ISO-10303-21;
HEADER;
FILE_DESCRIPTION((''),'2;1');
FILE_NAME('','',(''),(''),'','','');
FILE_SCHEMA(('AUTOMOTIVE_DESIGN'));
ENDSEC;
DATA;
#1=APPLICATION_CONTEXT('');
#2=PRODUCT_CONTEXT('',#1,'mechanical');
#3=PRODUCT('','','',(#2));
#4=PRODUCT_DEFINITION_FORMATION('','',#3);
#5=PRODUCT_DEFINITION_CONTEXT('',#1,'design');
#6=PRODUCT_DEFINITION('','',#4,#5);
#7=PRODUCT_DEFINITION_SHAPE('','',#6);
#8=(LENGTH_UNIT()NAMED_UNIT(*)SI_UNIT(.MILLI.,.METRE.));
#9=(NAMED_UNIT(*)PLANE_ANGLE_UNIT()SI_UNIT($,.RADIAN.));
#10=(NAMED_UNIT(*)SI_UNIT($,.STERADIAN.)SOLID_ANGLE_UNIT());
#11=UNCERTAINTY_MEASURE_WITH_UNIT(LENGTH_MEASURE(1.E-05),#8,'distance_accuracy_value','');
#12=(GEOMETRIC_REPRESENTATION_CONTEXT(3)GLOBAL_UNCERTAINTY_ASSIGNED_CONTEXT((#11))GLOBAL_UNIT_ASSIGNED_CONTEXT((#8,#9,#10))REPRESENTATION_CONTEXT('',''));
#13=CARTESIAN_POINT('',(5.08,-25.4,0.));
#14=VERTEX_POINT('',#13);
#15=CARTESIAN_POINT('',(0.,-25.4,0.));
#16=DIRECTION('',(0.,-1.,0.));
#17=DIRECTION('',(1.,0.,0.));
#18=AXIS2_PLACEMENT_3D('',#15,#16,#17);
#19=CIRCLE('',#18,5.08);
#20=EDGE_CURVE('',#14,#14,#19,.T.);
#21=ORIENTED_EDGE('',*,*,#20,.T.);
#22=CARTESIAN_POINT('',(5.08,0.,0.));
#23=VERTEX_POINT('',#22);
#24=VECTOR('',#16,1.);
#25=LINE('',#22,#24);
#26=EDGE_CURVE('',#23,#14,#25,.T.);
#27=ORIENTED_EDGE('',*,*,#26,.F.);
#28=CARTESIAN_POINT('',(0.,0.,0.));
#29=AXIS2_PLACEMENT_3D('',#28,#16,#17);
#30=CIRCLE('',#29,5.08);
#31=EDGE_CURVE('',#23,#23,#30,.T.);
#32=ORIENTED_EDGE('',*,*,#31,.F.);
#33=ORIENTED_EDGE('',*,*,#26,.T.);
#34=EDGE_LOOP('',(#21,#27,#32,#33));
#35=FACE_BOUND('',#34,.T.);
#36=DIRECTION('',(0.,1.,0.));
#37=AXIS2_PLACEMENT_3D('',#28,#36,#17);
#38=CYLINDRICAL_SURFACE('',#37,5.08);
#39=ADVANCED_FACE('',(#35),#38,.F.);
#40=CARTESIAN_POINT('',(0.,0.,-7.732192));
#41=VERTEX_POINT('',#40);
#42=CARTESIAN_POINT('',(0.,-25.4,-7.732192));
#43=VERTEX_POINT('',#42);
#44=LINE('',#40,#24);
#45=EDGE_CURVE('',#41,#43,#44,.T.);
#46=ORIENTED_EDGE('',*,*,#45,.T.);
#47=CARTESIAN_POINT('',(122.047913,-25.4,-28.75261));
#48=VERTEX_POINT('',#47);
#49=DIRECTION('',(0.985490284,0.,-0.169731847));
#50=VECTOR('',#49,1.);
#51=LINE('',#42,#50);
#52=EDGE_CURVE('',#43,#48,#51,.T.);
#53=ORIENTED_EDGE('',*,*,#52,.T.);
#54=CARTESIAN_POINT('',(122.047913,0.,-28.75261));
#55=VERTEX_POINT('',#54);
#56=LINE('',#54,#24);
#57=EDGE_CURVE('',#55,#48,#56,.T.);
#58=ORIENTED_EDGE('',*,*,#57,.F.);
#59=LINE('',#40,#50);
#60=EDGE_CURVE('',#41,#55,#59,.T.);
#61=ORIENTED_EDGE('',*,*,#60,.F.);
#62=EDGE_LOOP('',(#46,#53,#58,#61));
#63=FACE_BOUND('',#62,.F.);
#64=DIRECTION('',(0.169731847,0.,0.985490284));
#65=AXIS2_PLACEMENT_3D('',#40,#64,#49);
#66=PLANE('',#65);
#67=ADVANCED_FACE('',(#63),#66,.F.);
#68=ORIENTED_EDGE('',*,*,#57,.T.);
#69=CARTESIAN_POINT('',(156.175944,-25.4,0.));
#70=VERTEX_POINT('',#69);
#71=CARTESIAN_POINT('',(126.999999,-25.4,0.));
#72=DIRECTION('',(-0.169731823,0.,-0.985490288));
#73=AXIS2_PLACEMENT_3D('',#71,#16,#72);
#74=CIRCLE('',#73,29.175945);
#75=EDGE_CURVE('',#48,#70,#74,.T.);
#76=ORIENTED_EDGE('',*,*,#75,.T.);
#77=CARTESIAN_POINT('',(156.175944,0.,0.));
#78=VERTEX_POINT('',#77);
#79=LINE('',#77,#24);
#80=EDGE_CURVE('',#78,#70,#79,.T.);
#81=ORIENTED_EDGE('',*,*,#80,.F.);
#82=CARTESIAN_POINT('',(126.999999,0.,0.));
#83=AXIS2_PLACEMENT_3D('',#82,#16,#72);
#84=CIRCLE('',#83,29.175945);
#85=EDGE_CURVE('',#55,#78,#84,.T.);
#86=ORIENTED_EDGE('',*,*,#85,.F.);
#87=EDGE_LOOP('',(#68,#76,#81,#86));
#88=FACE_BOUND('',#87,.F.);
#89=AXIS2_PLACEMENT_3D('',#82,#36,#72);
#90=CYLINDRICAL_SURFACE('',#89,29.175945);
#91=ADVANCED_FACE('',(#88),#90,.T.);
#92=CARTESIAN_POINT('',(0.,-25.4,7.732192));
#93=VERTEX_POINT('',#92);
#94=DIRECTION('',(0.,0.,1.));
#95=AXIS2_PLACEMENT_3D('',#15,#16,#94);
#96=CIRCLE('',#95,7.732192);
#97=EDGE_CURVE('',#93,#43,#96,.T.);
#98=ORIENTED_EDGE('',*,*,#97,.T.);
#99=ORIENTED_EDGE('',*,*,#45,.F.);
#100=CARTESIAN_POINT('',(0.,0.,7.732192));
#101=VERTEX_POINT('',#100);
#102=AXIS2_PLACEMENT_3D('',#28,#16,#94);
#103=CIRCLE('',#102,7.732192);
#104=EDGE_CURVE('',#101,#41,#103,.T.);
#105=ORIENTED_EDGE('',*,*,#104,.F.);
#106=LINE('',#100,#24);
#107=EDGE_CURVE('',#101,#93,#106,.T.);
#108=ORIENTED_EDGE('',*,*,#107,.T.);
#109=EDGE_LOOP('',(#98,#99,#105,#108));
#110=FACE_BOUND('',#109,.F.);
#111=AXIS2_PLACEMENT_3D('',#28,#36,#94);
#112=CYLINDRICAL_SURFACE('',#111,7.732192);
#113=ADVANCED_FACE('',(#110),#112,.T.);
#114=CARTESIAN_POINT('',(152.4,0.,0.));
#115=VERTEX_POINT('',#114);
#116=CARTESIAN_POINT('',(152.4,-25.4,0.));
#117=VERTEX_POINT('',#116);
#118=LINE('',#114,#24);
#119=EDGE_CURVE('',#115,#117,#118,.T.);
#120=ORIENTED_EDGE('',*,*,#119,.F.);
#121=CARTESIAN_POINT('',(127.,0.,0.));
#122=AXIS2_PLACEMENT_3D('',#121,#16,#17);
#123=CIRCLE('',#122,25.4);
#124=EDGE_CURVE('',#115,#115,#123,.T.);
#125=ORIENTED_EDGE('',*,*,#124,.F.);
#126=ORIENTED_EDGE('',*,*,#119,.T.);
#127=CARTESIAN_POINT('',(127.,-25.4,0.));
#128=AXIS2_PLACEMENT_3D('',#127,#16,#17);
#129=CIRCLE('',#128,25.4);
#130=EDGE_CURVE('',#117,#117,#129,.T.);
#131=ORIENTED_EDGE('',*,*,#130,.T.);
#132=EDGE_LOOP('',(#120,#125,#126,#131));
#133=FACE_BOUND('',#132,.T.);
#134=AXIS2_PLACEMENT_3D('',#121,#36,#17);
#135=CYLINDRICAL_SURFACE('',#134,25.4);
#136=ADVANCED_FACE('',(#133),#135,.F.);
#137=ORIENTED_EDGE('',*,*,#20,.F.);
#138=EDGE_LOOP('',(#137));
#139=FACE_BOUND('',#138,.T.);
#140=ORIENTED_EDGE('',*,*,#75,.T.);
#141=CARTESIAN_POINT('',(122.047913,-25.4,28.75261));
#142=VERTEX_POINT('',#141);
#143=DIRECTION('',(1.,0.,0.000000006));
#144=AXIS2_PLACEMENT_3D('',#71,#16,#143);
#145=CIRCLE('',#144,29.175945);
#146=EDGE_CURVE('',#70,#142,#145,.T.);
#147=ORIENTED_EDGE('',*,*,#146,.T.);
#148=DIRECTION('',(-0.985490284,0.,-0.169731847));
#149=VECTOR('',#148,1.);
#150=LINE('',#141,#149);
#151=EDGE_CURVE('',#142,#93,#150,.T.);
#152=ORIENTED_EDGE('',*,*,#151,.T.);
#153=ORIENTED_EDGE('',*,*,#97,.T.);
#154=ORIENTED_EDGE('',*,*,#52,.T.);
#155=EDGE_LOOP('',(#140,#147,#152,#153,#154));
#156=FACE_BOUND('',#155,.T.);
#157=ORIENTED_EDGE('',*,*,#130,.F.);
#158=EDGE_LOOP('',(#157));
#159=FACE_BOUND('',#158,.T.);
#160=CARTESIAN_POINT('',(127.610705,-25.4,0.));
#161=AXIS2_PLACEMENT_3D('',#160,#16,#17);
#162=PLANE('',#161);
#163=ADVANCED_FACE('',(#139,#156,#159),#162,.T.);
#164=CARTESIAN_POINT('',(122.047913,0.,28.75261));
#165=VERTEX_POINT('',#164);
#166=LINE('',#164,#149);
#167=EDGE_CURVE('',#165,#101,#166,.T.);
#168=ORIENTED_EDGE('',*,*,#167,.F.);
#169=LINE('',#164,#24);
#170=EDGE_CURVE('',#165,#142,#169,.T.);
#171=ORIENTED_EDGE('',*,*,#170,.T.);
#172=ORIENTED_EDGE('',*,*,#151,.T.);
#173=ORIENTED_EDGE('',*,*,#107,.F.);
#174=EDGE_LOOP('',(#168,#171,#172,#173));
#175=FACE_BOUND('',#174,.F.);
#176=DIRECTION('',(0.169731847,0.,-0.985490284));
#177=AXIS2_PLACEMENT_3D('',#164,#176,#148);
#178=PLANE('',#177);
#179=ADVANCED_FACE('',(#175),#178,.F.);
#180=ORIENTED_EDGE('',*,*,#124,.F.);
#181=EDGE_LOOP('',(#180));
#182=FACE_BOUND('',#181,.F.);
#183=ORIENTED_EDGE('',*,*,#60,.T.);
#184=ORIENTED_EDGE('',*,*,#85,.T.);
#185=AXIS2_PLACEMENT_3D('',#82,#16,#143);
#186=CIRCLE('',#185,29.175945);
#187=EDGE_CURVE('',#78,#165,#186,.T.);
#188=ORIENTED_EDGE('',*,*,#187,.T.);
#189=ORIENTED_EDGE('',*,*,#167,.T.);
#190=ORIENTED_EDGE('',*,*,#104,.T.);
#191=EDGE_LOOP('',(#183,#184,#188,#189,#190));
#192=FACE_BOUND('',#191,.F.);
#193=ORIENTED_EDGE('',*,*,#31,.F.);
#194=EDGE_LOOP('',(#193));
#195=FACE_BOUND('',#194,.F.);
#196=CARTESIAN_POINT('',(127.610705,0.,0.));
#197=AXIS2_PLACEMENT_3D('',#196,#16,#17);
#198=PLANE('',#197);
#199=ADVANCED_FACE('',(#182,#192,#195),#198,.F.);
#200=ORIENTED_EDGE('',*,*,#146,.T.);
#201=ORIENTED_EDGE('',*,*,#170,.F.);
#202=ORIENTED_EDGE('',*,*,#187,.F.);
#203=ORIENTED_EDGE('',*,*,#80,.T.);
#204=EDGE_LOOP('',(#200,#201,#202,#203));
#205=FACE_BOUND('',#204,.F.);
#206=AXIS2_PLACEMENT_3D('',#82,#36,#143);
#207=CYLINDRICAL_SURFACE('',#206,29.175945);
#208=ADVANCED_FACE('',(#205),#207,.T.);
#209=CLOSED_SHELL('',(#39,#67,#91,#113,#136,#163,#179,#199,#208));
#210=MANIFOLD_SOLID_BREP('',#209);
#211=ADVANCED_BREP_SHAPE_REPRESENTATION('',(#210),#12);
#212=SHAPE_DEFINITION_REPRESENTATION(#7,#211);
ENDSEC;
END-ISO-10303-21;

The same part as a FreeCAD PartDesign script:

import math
import FreeCAD as App
import Part
import Sketcher
from FreeCAD import Vector
Q = App.Units.Quantity

doc = App.newDocument("Part")
body = doc.addObject("PartDesign::Body", "Body")

# Sketch on XZ plane
sketch1 = body.newObject("Sketcher::SketchObject", "Sketch")
sketch1.AttachmentSupport = (doc.getObject("XZ_Plane"), [""])
sketch1.MapMode = "FlatFace"
sketch1.addGeometry(Part.ArcOfCircle(Part.Circle(Vector(127, 0, 0), Vector(0, 0, 1), 29), math.radians(0), math.radians(100)), False)
sketch1.addGeometry(Part.LineSegment(Vector(122, 29, 0), Vector(0, 8, 0)), False)
sketch1.addGeometry(Part.ArcOfCircle(Part.Circle(Vector(0, 0, 0), Vector(0, 0, 1), 8), math.radians(90), math.radians(270)), False)
sketch1.addGeometry(Part.LineSegment(Vector(0, -8, 0), Vector(122, -29, 0)), False)
sketch1.addGeometry(Part.ArcOfCircle(Part.Circle(Vector(127, 0, 0), Vector(0, 0, 1), 29), math.radians(-100), math.radians(0)), False)
sketch1.addGeometry(Part.Circle(Vector(0, 0, 0), Vector(0, 0, 1), 5), False)
sketch1.addGeometry(Part.Circle(Vector(127, 0, 0), Vector(0, 0, 1), 25), False)
sketch1.addConstraint(Sketcher.Constraint("Tangent", 0, 2, 1, 1))
sketch1.addConstraint(Sketcher.Constraint("Coincident", 1, 2, 2, 1))
sketch1.addConstraint(Sketcher.Constraint("Coincident", 2, 2, 3, 1))
sketch1.addConstraint(Sketcher.Constraint("Tangent", 3, 2, 4, 1))
sketch1.addConstraint(Sketcher.Constraint("Tangent", 4, 2, 0, 1))
sketch1.addConstraint(Sketcher.Constraint("Coincident", 2, 3, -1, 1))
sketch1.addConstraint(Sketcher.Constraint("Coincident", 5, 3, -1, 1))
sketch1.addConstraint(Sketcher.Constraint("Coincident", 6, 3, 0, 3))
sketch1.addConstraint(Sketcher.Constraint("Equal", 0, 4))
sketch1.addConstraint(Sketcher.Constraint("Symmetric", 0, 2, 3, 2, -1))
sketch1.addConstraint(Sketcher.Constraint("PointOnObject", 1, 2, -2))
sketch1.addConstraint(Sketcher.Constraint("PointOnObject", 4, 2, -1))
sketch1.addConstraint(Sketcher.Constraint("Diameter", 6, Q("2 in")))
sketch1.addConstraint(Sketcher.Constraint("Diameter", 5, Q("0.4 in")))
sketch1.addConstraint(Sketcher.Constraint("DistanceX", -1, 1, 0, 3, Q("5 in")))
sketch1.addConstraint(Sketcher.Constraint("Radius", 0, 29.175945))
sketch1.addConstraint(Sketcher.Constraint("Radius", 2, 7.732192))
pad1 = body.newObject("PartDesign::Pad", "Pad")
pad1.Profile = sketch1
pad1.Length = Q("1 in")

doc.recompute()
